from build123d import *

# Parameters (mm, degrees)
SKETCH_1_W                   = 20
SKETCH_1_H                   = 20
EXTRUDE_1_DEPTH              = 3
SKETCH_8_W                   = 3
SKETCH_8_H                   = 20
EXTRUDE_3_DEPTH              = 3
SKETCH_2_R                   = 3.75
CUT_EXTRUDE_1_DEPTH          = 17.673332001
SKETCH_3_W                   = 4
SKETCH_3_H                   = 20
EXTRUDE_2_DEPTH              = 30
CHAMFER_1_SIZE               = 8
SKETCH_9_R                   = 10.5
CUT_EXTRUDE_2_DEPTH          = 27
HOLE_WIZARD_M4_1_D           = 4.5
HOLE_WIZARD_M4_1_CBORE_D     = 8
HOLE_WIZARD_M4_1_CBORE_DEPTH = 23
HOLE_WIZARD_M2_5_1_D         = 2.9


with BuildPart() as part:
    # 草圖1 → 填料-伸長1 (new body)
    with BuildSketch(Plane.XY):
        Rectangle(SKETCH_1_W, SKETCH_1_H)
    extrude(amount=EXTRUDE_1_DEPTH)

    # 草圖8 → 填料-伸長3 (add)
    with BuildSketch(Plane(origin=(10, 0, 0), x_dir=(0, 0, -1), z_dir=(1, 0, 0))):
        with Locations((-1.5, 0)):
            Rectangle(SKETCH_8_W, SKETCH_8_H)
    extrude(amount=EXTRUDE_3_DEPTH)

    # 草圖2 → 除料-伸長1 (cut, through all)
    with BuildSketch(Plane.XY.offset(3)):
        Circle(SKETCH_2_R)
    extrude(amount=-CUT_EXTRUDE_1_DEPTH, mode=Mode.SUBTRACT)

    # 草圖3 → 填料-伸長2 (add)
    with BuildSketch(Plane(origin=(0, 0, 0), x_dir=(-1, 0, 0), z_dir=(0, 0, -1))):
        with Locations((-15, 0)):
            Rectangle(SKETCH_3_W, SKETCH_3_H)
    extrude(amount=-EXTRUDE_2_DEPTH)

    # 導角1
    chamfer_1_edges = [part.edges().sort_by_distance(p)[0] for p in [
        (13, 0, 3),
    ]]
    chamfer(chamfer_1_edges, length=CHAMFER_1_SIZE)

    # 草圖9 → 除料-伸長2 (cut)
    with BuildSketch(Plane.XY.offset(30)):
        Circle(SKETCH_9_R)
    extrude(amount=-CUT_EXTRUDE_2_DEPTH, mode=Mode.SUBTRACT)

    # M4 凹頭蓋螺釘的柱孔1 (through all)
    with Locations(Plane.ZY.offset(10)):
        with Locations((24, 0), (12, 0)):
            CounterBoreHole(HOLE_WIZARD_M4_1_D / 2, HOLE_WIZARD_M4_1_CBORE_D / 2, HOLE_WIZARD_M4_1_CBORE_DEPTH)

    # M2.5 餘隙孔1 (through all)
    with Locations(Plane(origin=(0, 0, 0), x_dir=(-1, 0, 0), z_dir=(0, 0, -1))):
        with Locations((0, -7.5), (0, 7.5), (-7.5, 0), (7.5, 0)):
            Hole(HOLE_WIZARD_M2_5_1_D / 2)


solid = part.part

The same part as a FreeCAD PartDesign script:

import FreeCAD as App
import Part
import Sketcher
from FreeCAD import Vector
Q = App.Units.Quantity


def edges_at(feature, points):
    """Names of the edges that pass closest to the given points."""
    edges = feature.Shape.Edges
    near = lambda p: min(range(len(edges)), key=lambda i: edges[i].distToShape(Part.Vertex(*p))[0])
    return sorted({f"Edge{near(p) + 1}" for p in points})


def add_polygon(sketch, points):
    """Adds a closed chain of lines whose ends are joined by coincident constraints."""
    first, n = sketch.GeometryCount, len(points)
    for a, b in zip(points, points[1:] + points[:1]):
        sketch.addGeometry(Part.LineSegment(App.Vector(*a, 0), App.Vector(*b, 0)), False)
    for i in range(n):
        sketch.addConstraint(Sketcher.Constraint("Coincident", first + i, 2, first + (i + 1) % n, 1))

doc = App.newDocument("Part")
body = doc.addObject("PartDesign::Body", "Body")

# Sketch on XY plane
sketch1 = body.newObject("Sketcher::SketchObject", "Sketch")
sketch1.AttachmentSupport = (doc.getObject("XY_Plane"), [""])
sketch1.MapMode = "FlatFace"
add_polygon(sketch1, [(-10, 10), (-10, -10), (10, -10), (10, 10)])  # lines 0-3
sketch1.addConstraint(Sketcher.Constraint("Vertical", 0))
sketch1.addConstraint(Sketcher.Constraint("Horizontal", 1))
sketch1.addConstraint(Sketcher.Constraint("Vertical", 2))
sketch1.addConstraint(Sketcher.Constraint("Horizontal", 3))
sketch1.addConstraint(Sketcher.Constraint("Symmetric", 0, 2, 2, 2, -1, 1))
sketch1.addConstraint(Sketcher.Constraint("Equal", 3, 0))
sketch1.addConstraint(Sketcher.Constraint("DistanceX", 1, 1, 1, 2, Q("20 mm")))
pad1 = body.newObject("PartDesign::Pad", "Pad")
pad1.Profile = sketch1
pad1.Length = 3

# Sketch on YZ plane
sketch2 = body.newObject("Sketcher::SketchObject", "Sketch001")
sketch2.AttachmentSupport = (doc.getObject("YZ_Plane"), [""])
sketch2.MapMode = "FlatFace"
sketch2.AttachmentOffset = App.Placement(Vector(0, 0, 10), App.Rotation())
add_polygon(sketch2, [(10, 3), (-10, 3), (-10, 0), (10, 0)])  # lines 0-3
sketch2.addConstraint(Sketcher.Constraint("Horizontal", 0))
sketch2.addConstraint(Sketcher.Constraint("Vertical", 1))
sketch2.addConstraint(Sketcher.Constraint("Horizontal", 2))
sketch2.addConstraint(Sketcher.Constraint("Vertical", 3))
sketch2.addConstraint(Sketcher.Constraint("Symmetric", 1, 2, 2, 2, -1, 1))
sketch2.addConstraint(Sketcher.Constraint("DistanceX", 0, 2, 0, 1, Q("20 mm")))
sketch2.addConstraint(Sketcher.Constraint("DistanceY", 1, 2, 1, 1, Q("3 mm")))
pad2 = body.newObject("PartDesign::Pad", "Pad001")
pad2.Profile = sketch2
pad2.Length = 3

# Sketch on XY plane
sketch3 = body.newObject("Sketcher::SketchObject", "Sketch002")
sketch3.AttachmentSupport = (doc.getObject("XY_Plane"), [""])
sketch3.MapMode = "FlatFace"
sketch3.AttachmentOffset = App.Placement(Vector(0, 0, 3), App.Rotation())
sketch3.addGeometry(Part.Circle(Vector(0, 0, 0), Vector(0, 0, 1), 3.75), False)
sketch3.addConstraint(Sketcher.Constraint("Coincident", 0, 3, -1, 1))
sketch3.addConstraint(Sketcher.Constraint("Diameter", 0, Q("7.5 mm")))
pocket1 = body.newObject("PartDesign::Pocket", "Pocket")
pocket1.Profile = sketch3
pocket1.Type = "ThroughAll"

# Sketch on XY plane
sketch4 = body.newObject("Sketcher::SketchObject", "Sketch003")
sketch4.AttachmentSupport = (doc.getObject("XY_Plane"), [""])
sketch4.MapMode = "FlatFace"
add_polygon(sketch4, [(17, 10), (17, -10), (13, -10), (13, 10)])  # lines 0-3
sketch4.addConstraint(Sketcher.Constraint("Vertical", 0))
sketch4.addConstraint(Sketcher.Constraint("Horizontal", 1))
sketch4.addConstraint(Sketcher.Constraint("Vertical", 2))
sketch4.addConstraint(Sketcher.Constraint("Horizontal", 3))
sketch4.addConstraint(Sketcher.Constraint("DistanceX", 1, 2, 1, 1, Q("4 mm")))
sketch4.addConstraint(Sketcher.Constraint("DistanceY", 0, 2, 0, 1, Q("20 mm")))
sketch4.addConstraint(Sketcher.Constraint("DistanceX", -1, 1, 0, 2, Q("17 mm")))
sketch4.addConstraint(Sketcher.Constraint("DistanceY", 0, 2, -1, 1, Q("10 mm")))
pad3 = body.newObject("PartDesign::Pad", "Pad002")
pad3.Profile = sketch4
pad3.Length = 30
doc.recompute()

chamfer = body.newObject("PartDesign::Chamfer", "Chamfer")
chamfer.Base = (pad3, edges_at(pad3, [(13, 0, 3)]))
chamfer.Size = 8

# Sketch on XY plane
sketch5 = body.newObject("Sketcher::SketchObject", "Sketch004")
sketch5.AttachmentSupport = (doc.getObject("XY_Plane"), [""])
sketch5.MapMode = "FlatFace"
sketch5.AttachmentOffset = App.Placement(Vector(0, 0, 30), App.Rotation())
sketch5.addGeometry(Part.Circle(Vector(0, 0, 0), Vector(0, 0, 1), 10.5), False)
sketch5.addConstraint(Sketcher.Constraint("Coincident", 0, 3, -1, 1))
sketch5.addConstraint(Sketcher.Constraint("Diameter", 0, Q("21 mm")))
pocket2 = body.newObject("PartDesign::Pocket", "Pocket001")
pocket2.Profile = sketch5
pocket2.Length = 27

# Sketch on YZ plane
sketch6 = body.newObject("Sketcher::SketchObject", "Sketch005")
sketch6.AttachmentSupport = (doc.getObject("YZ_Plane"), [""])
sketch6.MapMode = "FlatFace"
sketch6.AttachmentOffset = App.Placement(Vector(0, 0, -10), App.Rotation())
sketch6.addGeometry(Part.Circle(Vector(0, 24, 0), Vector(0, 0, 1), 2.25), False)
sketch6.addGeometry(Part.Circle(Vector(0, 12, 0), Vector(0, 0, 1), 2.25), False)
sketch6.addConstraint(Sketcher.Constraint("Equal", 0, 1))
sketch6.addConstraint(Sketcher.Constraint("PointOnObject", 0, 3, -2))
sketch6.addConstraint(Sketcher.Constraint("PointOnObject", 1, 3, -2))
sketch6.addConstraint(Sketcher.Constraint("Diameter", 0, Q("4.5 mm")))
sketch6.addConstraint(Sketcher.Constraint("DistanceY", -1, 1, 0, 3, Q("24 mm")))
sketch6.addConstraint(Sketcher.Constraint("DistanceY", -1, 1, 1, 3, Q("12 mm")))
doc.recompute()
hole = body.newObject("PartDesign::Hole", "Hole")
hole.Profile = sketch6
hole.ThreadType = "None"
hole.Diameter = 4.5
hole.DepthType = "ThroughAll"
hole.HoleCutType = "Counterbore"
hole.HoleCutDiameter = 8
hole.HoleCutDepth = 23
hole.Reversed = True

# Sketch on XY plane
sketch7 = body.newObject("Sketcher::SketchObject", "Sketch006")
sketch7.AttachmentSupport = (doc.getObject("XY_Plane"), [""])
sketch7.MapMode = "FlatFace"
sketch7.addGeometry(Part.Circle(Vector(0, -7.5, 0), Vector(0, 0, 1), 1.45), False)
sketch7.addGeometry(Part.Circle(Vector(0, 7.5, 0), Vector(0, 0, 1), 1.45), False)
sketch7.addGeometry(Part.Circle(Vector(7.5, 0, 0), Vector(0, 0, 1), 1.45), False)
sketch7.addGeometry(Part.Circle(Vector(-7.5, 0, 0), Vector(0, 0, 1), 1.45), False)
sketch7.addConstraint(Sketcher.Constraint("Equal", 0, 1))
sketch7.addConstraint(Sketcher.Constraint("Equal", 1, 2))
sketch7.addConstraint(Sketcher.Constraint("Equal", 2, 3))
sketch7.addConstraint(Sketcher.Constraint("Symmetric", 0, 3, 1, 3, -1, 1))
sketch7.addConstraint(Sketcher.Constraint("Symmetric", 2, 3, 3, 3, -1, 1))
sketch7.addConstraint(Sketcher.Constraint("PointOnObject", 0, 3, -2))
sketch7.addConstraint(Sketcher.Constraint("PointOnObject", 2, 3, -1))
sketch7.addConstraint(Sketcher.Constraint("Diameter", 0, Q("2.9 mm")))
sketch7.addConstraint(Sketcher.Constraint("DistanceY", 0, 3, 1, 3, Q("15 mm")))
sketch7.addConstraint(Sketcher.Constraint("DistanceX", 3, 3, 2, 3, Q("15 mm")))
doc.recompute()
hole2 = body.newObject("PartDesign::Hole", "Hole001")
hole2.Profile = sketch7
hole2.ThreadType = "None"
hole2.Diameter = 2.9
hole2.DepthType = "ThroughAll"
hole2.Reversed = True

doc.recompute()
